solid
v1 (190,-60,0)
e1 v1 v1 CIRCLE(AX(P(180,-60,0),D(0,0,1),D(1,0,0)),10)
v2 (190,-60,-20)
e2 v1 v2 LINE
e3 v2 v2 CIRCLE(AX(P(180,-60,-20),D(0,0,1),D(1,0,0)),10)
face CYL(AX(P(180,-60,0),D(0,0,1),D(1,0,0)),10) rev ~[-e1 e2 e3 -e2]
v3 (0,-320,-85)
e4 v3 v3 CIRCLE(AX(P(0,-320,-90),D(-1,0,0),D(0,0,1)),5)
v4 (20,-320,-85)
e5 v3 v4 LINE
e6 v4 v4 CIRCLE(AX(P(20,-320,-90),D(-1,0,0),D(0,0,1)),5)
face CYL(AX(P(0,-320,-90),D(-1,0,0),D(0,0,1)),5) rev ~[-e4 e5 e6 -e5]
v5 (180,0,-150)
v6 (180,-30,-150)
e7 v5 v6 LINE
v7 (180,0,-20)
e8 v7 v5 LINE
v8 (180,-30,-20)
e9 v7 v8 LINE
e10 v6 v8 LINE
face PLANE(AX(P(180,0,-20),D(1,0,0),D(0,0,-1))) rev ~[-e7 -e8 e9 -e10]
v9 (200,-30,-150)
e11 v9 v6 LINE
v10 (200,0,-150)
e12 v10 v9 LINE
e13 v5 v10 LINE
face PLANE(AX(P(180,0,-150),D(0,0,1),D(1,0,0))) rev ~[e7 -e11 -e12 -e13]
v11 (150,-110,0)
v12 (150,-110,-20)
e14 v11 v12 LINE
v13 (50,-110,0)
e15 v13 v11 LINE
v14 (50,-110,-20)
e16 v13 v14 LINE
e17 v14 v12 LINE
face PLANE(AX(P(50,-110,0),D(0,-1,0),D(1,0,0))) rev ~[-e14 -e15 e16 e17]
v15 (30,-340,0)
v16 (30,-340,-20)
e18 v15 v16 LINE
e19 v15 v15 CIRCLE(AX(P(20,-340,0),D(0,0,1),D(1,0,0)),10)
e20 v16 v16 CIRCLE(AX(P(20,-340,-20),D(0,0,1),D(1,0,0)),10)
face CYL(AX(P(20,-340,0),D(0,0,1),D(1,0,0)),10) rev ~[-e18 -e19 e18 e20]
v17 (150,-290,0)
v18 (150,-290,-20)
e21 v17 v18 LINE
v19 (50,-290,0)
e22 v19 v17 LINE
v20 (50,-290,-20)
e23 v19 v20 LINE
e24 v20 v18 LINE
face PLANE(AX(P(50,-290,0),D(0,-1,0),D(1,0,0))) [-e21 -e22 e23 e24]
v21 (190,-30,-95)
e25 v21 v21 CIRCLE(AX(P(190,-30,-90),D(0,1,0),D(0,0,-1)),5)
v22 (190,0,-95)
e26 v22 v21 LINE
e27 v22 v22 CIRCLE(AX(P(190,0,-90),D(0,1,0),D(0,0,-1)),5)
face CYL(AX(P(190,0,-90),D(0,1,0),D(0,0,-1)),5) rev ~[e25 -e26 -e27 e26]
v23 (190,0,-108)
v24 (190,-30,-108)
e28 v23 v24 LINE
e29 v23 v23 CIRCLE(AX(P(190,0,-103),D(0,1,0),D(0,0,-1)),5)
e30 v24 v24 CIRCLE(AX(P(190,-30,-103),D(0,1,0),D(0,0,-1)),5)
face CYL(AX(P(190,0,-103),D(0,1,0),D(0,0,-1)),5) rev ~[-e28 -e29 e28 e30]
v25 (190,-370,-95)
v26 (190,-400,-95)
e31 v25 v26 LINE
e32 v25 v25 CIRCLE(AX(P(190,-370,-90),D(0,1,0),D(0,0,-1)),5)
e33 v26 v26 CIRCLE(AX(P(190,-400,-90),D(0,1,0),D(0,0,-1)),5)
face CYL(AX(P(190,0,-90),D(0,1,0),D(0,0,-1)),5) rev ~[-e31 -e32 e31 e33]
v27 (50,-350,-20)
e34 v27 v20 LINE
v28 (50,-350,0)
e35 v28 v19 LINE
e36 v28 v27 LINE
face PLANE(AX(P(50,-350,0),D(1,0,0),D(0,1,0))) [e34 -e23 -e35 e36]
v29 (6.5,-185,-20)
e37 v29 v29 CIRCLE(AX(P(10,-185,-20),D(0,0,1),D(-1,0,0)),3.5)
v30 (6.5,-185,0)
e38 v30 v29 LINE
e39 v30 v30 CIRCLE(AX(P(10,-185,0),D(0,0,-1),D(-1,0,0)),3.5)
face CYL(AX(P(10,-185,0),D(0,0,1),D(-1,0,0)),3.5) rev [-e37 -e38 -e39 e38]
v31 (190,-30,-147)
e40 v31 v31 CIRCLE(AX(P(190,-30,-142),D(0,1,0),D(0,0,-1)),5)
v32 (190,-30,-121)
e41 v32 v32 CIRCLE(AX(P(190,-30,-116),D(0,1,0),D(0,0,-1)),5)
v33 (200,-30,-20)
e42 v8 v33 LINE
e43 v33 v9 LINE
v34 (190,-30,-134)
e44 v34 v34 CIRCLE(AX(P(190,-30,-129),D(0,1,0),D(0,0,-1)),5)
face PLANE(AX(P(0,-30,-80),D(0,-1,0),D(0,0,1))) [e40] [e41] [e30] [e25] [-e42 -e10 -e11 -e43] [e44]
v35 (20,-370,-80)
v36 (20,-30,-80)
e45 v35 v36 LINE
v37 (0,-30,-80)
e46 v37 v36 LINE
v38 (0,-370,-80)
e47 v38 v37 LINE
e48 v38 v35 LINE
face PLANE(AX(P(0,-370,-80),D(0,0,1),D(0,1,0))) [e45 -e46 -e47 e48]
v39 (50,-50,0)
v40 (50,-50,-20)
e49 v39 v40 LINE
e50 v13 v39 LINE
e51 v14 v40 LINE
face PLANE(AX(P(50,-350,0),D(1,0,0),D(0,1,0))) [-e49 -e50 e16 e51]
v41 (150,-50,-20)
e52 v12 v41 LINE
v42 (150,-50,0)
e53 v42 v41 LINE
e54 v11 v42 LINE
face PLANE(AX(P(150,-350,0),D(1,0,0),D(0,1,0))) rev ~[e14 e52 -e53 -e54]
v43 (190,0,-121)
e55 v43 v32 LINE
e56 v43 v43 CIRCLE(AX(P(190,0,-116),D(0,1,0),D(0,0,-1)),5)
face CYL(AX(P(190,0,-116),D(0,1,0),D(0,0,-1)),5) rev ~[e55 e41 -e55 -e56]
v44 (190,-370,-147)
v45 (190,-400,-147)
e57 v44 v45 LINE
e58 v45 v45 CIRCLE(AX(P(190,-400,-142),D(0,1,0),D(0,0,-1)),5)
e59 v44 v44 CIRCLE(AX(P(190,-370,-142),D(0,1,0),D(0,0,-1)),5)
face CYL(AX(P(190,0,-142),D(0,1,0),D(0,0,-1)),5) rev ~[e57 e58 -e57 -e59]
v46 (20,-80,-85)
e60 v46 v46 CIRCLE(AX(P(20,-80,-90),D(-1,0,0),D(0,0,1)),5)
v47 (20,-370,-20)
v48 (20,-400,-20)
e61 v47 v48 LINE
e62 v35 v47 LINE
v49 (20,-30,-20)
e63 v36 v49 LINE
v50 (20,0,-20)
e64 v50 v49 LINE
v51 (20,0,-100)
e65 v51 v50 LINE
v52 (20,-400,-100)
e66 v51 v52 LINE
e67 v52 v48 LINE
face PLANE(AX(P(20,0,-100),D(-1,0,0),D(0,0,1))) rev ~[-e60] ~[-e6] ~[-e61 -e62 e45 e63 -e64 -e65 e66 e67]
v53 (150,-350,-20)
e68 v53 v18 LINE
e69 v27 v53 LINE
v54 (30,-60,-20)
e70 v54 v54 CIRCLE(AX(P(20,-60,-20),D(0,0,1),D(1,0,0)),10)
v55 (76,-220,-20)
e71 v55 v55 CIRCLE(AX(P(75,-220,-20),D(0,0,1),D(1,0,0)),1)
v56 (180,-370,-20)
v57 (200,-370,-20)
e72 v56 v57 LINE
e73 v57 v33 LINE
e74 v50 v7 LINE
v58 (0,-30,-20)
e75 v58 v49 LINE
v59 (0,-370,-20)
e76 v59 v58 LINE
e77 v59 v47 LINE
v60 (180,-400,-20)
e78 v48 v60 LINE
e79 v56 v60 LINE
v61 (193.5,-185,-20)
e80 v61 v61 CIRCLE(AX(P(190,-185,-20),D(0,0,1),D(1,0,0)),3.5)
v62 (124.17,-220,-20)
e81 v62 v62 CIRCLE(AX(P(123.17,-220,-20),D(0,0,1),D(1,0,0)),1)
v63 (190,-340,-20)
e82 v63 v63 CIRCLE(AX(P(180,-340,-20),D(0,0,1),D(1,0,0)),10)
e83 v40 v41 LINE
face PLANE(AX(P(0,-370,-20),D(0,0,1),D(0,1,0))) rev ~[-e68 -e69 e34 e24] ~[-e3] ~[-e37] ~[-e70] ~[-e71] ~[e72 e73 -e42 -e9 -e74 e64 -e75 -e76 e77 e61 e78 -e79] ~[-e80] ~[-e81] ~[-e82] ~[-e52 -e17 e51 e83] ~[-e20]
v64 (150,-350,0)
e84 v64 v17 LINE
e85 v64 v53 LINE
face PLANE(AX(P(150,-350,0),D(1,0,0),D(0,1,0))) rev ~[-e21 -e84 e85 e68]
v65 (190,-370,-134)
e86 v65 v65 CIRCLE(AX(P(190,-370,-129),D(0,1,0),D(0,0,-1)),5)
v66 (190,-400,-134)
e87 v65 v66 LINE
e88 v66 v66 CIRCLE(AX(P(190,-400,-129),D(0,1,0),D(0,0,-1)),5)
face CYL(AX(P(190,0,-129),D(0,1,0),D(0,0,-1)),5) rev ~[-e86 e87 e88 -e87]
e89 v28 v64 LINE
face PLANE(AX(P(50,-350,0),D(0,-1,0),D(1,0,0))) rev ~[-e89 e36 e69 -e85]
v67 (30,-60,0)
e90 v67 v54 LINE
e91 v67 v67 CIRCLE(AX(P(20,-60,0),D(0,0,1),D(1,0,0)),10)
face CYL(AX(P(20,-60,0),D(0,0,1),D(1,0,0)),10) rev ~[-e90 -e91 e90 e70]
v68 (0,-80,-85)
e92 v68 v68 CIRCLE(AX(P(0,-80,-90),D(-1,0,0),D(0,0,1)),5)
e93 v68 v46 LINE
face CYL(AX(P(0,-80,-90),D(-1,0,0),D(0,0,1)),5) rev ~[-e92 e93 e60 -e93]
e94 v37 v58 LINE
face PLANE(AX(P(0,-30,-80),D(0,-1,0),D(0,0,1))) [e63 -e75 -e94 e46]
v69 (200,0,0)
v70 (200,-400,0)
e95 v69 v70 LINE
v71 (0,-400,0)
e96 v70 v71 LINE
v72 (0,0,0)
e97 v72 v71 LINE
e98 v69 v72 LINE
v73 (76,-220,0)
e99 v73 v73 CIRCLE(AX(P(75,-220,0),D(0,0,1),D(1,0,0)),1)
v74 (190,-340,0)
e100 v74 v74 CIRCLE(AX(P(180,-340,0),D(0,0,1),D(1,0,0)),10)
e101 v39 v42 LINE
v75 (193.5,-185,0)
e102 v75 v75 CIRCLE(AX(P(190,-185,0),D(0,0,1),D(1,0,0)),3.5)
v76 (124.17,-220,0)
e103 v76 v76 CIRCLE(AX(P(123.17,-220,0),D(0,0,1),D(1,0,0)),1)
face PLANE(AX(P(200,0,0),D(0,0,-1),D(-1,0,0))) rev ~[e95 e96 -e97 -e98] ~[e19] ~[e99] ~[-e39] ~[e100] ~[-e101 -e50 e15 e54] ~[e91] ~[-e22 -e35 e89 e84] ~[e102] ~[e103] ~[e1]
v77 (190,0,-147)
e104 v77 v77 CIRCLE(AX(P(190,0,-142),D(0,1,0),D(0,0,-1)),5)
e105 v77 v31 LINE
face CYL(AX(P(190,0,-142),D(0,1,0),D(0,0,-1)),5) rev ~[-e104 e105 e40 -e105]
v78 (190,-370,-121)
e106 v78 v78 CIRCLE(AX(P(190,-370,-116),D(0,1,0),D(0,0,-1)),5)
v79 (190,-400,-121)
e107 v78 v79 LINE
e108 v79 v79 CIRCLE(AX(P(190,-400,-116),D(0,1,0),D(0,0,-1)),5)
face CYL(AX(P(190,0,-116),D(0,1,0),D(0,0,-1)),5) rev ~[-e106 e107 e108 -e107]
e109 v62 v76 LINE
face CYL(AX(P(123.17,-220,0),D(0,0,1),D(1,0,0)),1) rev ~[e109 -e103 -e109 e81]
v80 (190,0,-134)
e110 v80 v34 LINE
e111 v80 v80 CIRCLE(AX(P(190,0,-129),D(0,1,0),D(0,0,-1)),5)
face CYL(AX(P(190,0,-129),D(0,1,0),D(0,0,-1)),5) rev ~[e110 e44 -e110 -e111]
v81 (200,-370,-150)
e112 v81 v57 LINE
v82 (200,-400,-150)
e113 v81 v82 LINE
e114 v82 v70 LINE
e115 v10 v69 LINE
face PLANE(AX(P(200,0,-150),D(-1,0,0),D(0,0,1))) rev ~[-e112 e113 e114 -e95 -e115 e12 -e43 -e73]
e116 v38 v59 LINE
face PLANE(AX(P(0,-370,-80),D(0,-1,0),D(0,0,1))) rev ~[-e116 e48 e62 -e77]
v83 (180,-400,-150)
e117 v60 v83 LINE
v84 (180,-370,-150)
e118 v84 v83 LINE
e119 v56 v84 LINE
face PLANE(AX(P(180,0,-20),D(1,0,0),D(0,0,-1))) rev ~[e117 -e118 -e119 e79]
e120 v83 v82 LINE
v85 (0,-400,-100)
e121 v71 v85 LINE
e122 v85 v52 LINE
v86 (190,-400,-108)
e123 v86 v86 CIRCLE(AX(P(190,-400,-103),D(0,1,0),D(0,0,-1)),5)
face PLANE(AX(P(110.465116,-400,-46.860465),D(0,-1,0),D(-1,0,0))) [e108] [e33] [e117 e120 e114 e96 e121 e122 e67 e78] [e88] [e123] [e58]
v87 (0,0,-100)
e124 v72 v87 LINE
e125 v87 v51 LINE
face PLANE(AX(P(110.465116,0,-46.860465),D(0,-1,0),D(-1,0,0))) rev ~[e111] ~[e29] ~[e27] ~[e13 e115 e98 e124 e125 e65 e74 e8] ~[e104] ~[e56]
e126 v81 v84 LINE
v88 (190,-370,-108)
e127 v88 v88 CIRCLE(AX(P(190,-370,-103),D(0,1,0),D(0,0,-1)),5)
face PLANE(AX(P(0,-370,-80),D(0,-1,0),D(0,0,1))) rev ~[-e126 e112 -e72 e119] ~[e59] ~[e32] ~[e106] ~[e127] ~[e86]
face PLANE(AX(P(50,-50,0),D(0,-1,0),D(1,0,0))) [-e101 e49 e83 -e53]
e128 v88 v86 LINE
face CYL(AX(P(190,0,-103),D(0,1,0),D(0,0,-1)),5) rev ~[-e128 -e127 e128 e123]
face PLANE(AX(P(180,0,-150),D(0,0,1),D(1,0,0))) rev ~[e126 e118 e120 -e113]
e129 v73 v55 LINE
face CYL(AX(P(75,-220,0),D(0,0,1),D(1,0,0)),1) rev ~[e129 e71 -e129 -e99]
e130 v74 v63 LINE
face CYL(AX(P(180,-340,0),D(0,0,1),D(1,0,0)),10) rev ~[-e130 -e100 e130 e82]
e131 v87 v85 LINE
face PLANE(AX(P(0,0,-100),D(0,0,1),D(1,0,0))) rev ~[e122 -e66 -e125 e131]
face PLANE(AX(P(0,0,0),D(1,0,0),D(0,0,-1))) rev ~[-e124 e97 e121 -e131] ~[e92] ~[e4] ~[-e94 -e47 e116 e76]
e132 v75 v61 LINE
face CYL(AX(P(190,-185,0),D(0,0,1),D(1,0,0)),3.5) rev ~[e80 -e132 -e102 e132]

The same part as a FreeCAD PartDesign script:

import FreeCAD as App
import Part
import Sketcher

V = App.Vector
Q = App.Units.Quantity

doc = App.newDocument("Part")
body = doc.addObject("PartDesign::Body", "Body")

sketch1 = body.newObject("Sketcher::SketchObject", "Sketch")
sketch1.AttachmentSupport = (doc.getObject("XZ_Plane"), [""])
sketch1.MapMode = "FlatFace"
sketch1.addGeometry([
    Part.LineSegment(V(0, -100, 0), V(0, 0, 0)),
    Part.LineSegment(V(0, 0, 0), V(200, 0, 0)),
    Part.LineSegment(V(200, 0, 0), V(200, -150, 0)),
    Part.LineSegment(V(200, -150, 0), V(180, -150, 0)),
    Part.LineSegment(V(180, -150, 0), V(180, -20, 0)),
    Part.LineSegment(V(180, -20, 0), V(20, -20, 0)),
    Part.LineSegment(V(20, -20, 0), V(20, -100, 0)),
    Part.LineSegment(V(20, -100, 0), V(0, -100, 0)),
], False)
sketch1.addConstraint([
    Sketcher.Constraint("Coincident", 0, 2, 1, 1),
    Sketcher.Constraint("Coincident", 1, 2, 2, 1),
    Sketcher.Constraint("Coincident", 2, 2, 3, 1),
    Sketcher.Constraint("Coincident", 3, 2, 4, 1),
    Sketcher.Constraint("Coincident", 4, 2, 5, 1),
    Sketcher.Constraint("Coincident", 5, 2, 6, 1),
    Sketcher.Constraint("Coincident", 6, 2, 7, 1),
    Sketcher.Constraint("Coincident", 7, 2, 0, 1),
    Sketcher.Constraint("Vertical", 0),
    Sketcher.Constraint("Horizontal", 1),
    Sketcher.Constraint("Vertical", 2),
    Sketcher.Constraint("Horizontal", 3),
    Sketcher.Constraint("Vertical", 4),
    Sketcher.Constraint("Horizontal", 5),
    Sketcher.Constraint("Vertical", 6),
    Sketcher.Constraint("Horizontal", 7),
    Sketcher.Constraint("Coincident", 0, 2, -1, 1),
    Sketcher.Constraint("Equal", 3, 7),
    Sketcher.Constraint("DistanceX", 1, 1, 1, 2, Q("200 mm")),
    Sketcher.Constraint("DistanceX", 3, 2, 3, 1, Q("20 mm")),
    Sketcher.Constraint("DistanceY", 0, 1, 0, 2, Q("100 mm")),
    Sketcher.Constraint("DistanceY", 2, 2, 2, 1, Q("150 mm")),
    Sketcher.Constraint("DistanceY", 4, 1, 4, 2, Q("130 mm")),
])
pad1 = body.newObject("PartDesign::Pad", "Pad")
pad1.Profile = sketch1
pad1.Length = 400

sketch2 = body.newObject("Sketcher::SketchObject", "Sketch001")
sketch2.AttachmentSupport = (doc.getObject("XY_Plane"), [""])
sketch2.MapMode = "FlatFace"
sketch2.addGeometry([
    Part.LineSegment(V(50, -50, 0), V(50, -350, 0)),
    Part.LineSegment(V(50, -350, 0), V(150, -350, 0)),
    Part.LineSegment(V(150, -350, 0), V(150, -50, 0)),
    Part.LineSegment(V(150, -50, 0), V(50, -50, 0)),
], False)
sketch2.addConstraint([
    Sketcher.Constraint("Coincident", 0, 2, 1, 1),
    Sketcher.Constraint("Coincident", 1, 2, 2, 1),
    Sketcher.Constraint("Coincident", 2, 2, 3, 1),
    Sketcher.Constraint("Coincident", 3, 2, 0, 1),
    Sketcher.Constraint("Vertical", 0),
    Sketcher.Constraint("Horizontal", 1),
    Sketcher.Constraint("Vertical", 2),
    Sketcher.Constraint("Horizontal", 3),
    Sketcher.Constraint("DistanceX", 1, 1, 1, 2, Q("100 mm")),
    Sketcher.Constraint("DistanceY", 0, 2, 0, 1, Q("300 mm")),
    Sketcher.Constraint("DistanceX", -1, 1, 0, 2, Q("50 mm")),
    Sketcher.Constraint("DistanceY", 0, 2, -1, 1, Q("350 mm")),
])
pocket1 = body.newObject("PartDesign::Pocket", "Pocket")
pocket1.Profile = sketch2
pocket1.Length = 400

sketch3 = body.newObject("Sketcher::SketchObject", "Sketch002")
sketch3.AttachmentSupport = (doc.getObject("YZ_Plane"), [""])
sketch3.MapMode = "FlatFace"
sketch3.addGeometry([
    Part.LineSegment(V(-30, -80, 0), V(-370, -80, 0)),
    Part.LineSegment(V(-370, -80, 0), V(-370, -20, 0)),
    Part.LineSegment(V(-370, -20, 0), V(-30, -20, 0)),
    Part.LineSegment(V(-30, -20, 0), V(-30, -80, 0)),
], False)
sketch3.addConstraint([
    Sketcher.Constraint("Coincident", 0, 2, 1, 1),
    Sketcher.Constraint("Coincident", 1, 2, 2, 1),
    Sketcher.Constraint("Coincident", 2, 2, 3, 1),
    Sketcher.Constraint("Coincident", 3, 2, 0, 1),
    Sketcher.Constraint("Horizontal", 0),
    Sketcher.Constraint("Vertical", 1),
    Sketcher.Constraint("Horizontal", 2),
    Sketcher.Constraint("Vertical", 3),
    Sketcher.Constraint("DistanceX", 0, 2, 0, 1, Q("340 mm")),
    Sketcher.Constraint("DistanceY", 1, 1, 1, 2, Q("60 mm")),
    Sketcher.Constraint("DistanceX", 0, 2, -1, 1, Q("370 mm")),
    Sketcher.Constraint("DistanceY", 0, 2, -1, 1, Q("80 mm")),
])
pocket2 = body.newObject("PartDesign::Pocket", "Pocket001")
pocket2.Profile = sketch3
pocket2.Length = 400
pocket2.Reversed = True

sketch4 = body.newObject("Sketcher::SketchObject", "Sketch003")
sketch4.AttachmentSupport = (doc.getObject("YZ_Plane"), [""])
sketch4.MapMode = "FlatFace"
sketch4.AttachmentOffset = App.Placement(V(0, 0, 200), App.Rotation())
sketch4.addGeometry([
    Part.LineSegment(V(-30, -80, 0), V(-370, -80, 0)),
    Part.LineSegment(V(-370, -80, 0), V(-370, -150, 0)),
    Part.LineSegment(V(-370, -150, 0), V(-30, -150, 0)),
    Part.LineSegment(V(-30, -150, 0), V(-30, -80, 0)),
], False)
sketch4.addConstraint([
    Sketcher.Constraint("Coincident", 0, 2, 1, 1),
    Sketcher.Constraint("Coincident", 1, 2, 2, 1),
    Sketcher.Constraint("Coincident", 2, 2, 3, 1),
    Sketcher.Constraint("Coincident", 3, 2, 0, 1),
    Sketcher.Constraint("Horizontal", 0),
    Sketcher.Constraint("Vertical", 1),
    Sketcher.Constraint("Horizontal", 2),
    Sketcher.Constraint("Vertical", 3),
    Sketcher.Constraint("DistanceX", 0, 2, 0, 1, Q("340 mm")),
    Sketcher.Constraint("DistanceY", 1, 2, 1, 1, Q("70 mm")),
    Sketcher.Constraint("DistanceX", 0, 2, -1, 1, Q("370 mm")),
    Sketcher.Constraint("DistanceY", 0, 2, -1, 1, Q("80 mm")),
])
pocket3 = body.newObject("PartDesign::Pocket", "Pocket002")
pocket3.Profile = sketch4
pocket3.Length = 118

sketch5 = body.newObject("Sketcher::SketchObject", "Sketch004")
sketch5.AttachmentSupport = (doc.getObject("XZ_Plane"), [""])
sketch5.MapMode = "FlatFace"
sketch5.addGeometry([
    Part.Circle(V(190, -142, 0), V(0, 0, 1), 5),
    Part.Circle(V(190, -129, 0), V(0, 0, 1), 5),
    Part.Circle(V(190, -116, 0), V(0, 0, 1), 5),
    Part.Circle(V(190, -103, 0), V(0, 0, 1), 5),
    Part.Circle(V(190, -90, 0), V(0, 0, 1), 5),
], False)
sketch5.addConstraint([
    Sketcher.Constraint("Equal", 0, 1),
    Sketcher.Constraint("Equal", 1, 2),
    Sketcher.Constraint("Equal", 2, 3),
    Sketcher.Constraint("Equal", 3, 4),
    Sketcher.Constraint("Vertical", 0, 3, 1, 3),
    Sketcher.Constraint("Vertical", 1, 3, 2, 3),
    Sketcher.Constraint("Vertical", 2, 3, 3, 3),
    Sketcher.Constraint("Vertical", 3, 3, 4, 3),
    Sketcher.Constraint("Diameter", 0, Q("10 mm")),
    Sketcher.Constraint("DistanceX", -1, 1, 0, 3, Q("190 mm")),
    Sketcher.Constraint("DistanceY", 0, 3, -1, 1, Q("142 mm")),
    Sketcher.Constraint("DistanceY", 1, 3, -1, 1, Q("129 mm")),
    Sketcher.Constraint("DistanceY", 2, 3, -1, 1, Q("116 mm")),
    Sketcher.Constraint("DistanceY", 3, 3, -1, 1, Q("103 mm")),
    Sketcher.Constraint("DistanceY", 4, 3, -1, 1, Q("90 mm")),
])
pocket4 = body.newObject("PartDesign::Pocket", "Pocket003")
pocket4.Profile = sketch5
pocket4.Length = 543
pocket4.Reversed = True

sketch6 = body.newObject("Sketcher::SketchObject", "Sketch005")
sketch6.AttachmentSupport = (doc.getObject("YZ_Plane"), [""])
sketch6.MapMode = "FlatFace"
sketch6.addGeometry([
    Part.Circle(V(-80, -90, 0), V(0, 0, 1), 5),
    Part.Circle(V(-320, -90, 0), V(0, 0, 1), 5),
], False)
sketch6.addConstraint([
    Sketcher.Constraint("Equal", 0, 1),
    Sketcher.Constraint("Horizontal", 0, 3, 1, 3),
    Sketcher.Constraint("Diameter", 0, Q("10 mm")),
    Sketcher.Constraint("DistanceX", 0, 3, -1, 1, Q("80 mm")),
    Sketcher.Constraint("DistanceY", 0, 3, -1, 1, Q("90 mm")),
    Sketcher.Constraint("DistanceX", 1, 3, -1, 1, Q("320 mm")),
])
pocket5 = body.newObject("PartDesign::Pocket", "Pocket004")
pocket5.Profile = sketch6
pocket5.Length = 193
pocket5.Reversed = True

sketch7 = body.newObject("Sketcher::SketchObject", "Sketch006")
sketch7.AttachmentSupport = (doc.getObject("XY_Plane"), [""])
sketch7.MapMode = "FlatFace"
sketch7.addGeometry([
    Part.Circle(V(180, -60, 0), V(0, 0, 1), 10),
    Part.Circle(V(20, -60, 0), V(0, 0, 1), 10),
    Part.Circle(V(180, -340, 0), V(0, 0, 1), 10),
    Part.Circle(V(20, -340, 0), V(0, 0, 1), 10),
], False)
sketch7.addConstraint([
    Sketcher.Constraint("Equal", 0, 1),
    Sketcher.Constraint("Equal", 1, 2),
    Sketcher.Constraint("Equal", 2, 3),
    Sketcher.Constraint("Horizontal", 0, 3, 1, 3),
    Sketcher.Constraint("Horizontal", 2, 3, 3, 3),
    Sketcher.Constraint("Vertical", 0, 3, 2, 3),
    Sketcher.Constraint("Vertical", 1, 3, 3, 3),
    Sketcher.Constraint("Diameter", 0, Q("20 mm")),
    Sketcher.Constraint("DistanceX", -1, 1, 0, 3, Q("180 mm")),
    Sketcher.Constraint("DistanceY", 0, 3, -1, 1, Q("60 mm")),
    Sketcher.Constraint("DistanceX", -1, 1, 1, 3, Q("20 mm")),
    Sketcher.Constraint("DistanceY", 2, 3, -1, 1, Q("340 mm")),
])
pocket6 = body.newObject("PartDesign::Pocket", "Pocket005")
pocket6.Profile = sketch7
pocket6.Length = 20

sketch8 = body.newObject("Sketcher::SketchObject", "Sketch007")
sketch8.AttachmentSupport = (doc.getObject("XY_Plane"), [""])
sketch8.MapMode = "FlatFace"
sketch8.addGeometry([
    Part.LineSegment(V(50, -110, 0), V(50, -290, 0)),
    Part.LineSegment(V(50, -290, 0), V(150, -290, 0)),
    Part.LineSegment(V(150, -290, 0), V(150, -110, 0)),
    Part.LineSegment(V(150, -110, 0), V(50, -110, 0)),
], False)
sketch8.addConstraint([
    Sketcher.Constraint("Coincident", 0, 2, 1, 1),
    Sketcher.Constraint("Coincident", 1, 2, 2, 1),
    Sketcher.Constraint("Coincident", 2, 2, 3, 1),
    Sketcher.Constraint("Coincident", 3, 2, 0, 1),
    Sketcher.Constraint("Vertical", 0),
    Sketcher.Constraint("Horizontal", 1),
    Sketcher.Constraint("Vertical", 2),
    Sketcher.Constraint("Horizontal", 3),
    Sketcher.Constraint("DistanceX", 1, 1, 1, 2, Q("100 mm")),
    Sketcher.Constraint("DistanceY", 0, 2, 0, 1, Q("180 mm")),
    Sketcher.Constraint("DistanceX", -1, 1, 0, 2, Q("50 mm")),
    Sketcher.Constraint("DistanceY", 0, 2, -1, 1, Q("290 mm")),
])
pad2 = body.newObject("PartDesign::Pad", "Pad001")
pad2.Profile = sketch8
pad2.Length = 20
pad2.Reversed = True

sketch9 = body.newObject("Sketcher::SketchObject", "Sketch008")
sketch9.AttachmentSupport = (doc.getObject("XY_Plane"), [""])
sketch9.MapMode = "FlatFace"
sketch9.addGeometry([
    Part.Circle(V(75, -220, 0), V(0, 0, 1), 1),
    Part.Circle(V(123.2, -220, 0), V(0, 0, 1), 1),
], False)
sketch9.addConstraint([
    Sketcher.Constraint("Equal", 0, 1),
    Sketcher.Constraint("Horizontal", 0, 3, 1, 3),
    Sketcher.Constraint("Diameter", 0, Q("2 mm")),
    Sketcher.Constraint("DistanceX", -1, 1, 0, 3, Q("75 mm")),
    Sketcher.Constraint("DistanceY", 0, 3, -1, 1, Q("220 mm")),
    Sketcher.Constraint("DistanceX", -1, 1, 1, 3, Q("123.17 mm")),
])
pocket7 = body.newObject("PartDesign::Pocket", "Pocket006")
pocket7.Profile = sketch9
pocket7.Length = 53
pocket7.Midplane = True

sketch10 = body.newObject("Sketcher::SketchObject", "Sketch009")
sketch10.AttachmentSupport = (doc.getObject("XY_Plane"), [""])
sketch10.MapMode = "FlatFace"
sketch10.addGeometry(Part.Circle(V(190, -185, 0), V(0, 0, 1), 3.5), False)
sketch10.addConstraint([
    Sketcher.Constraint("Diameter", 0, Q("7 mm")),
    Sketcher.Constraint("DistanceX", -1, 1, 0, 3, Q("190 mm")),
    Sketcher.Constraint("DistanceY", 0, 3, -1, 1, Q("185 mm")),
])
pocket8 = body.newObject("PartDesign::Pocket", "Pocket007")
pocket8.Profile = sketch10
pocket8.Length = 35
doc.recompute()

datumplane = body.newObject("PartDesign::Plane", "DatumPlane")
datumplane.AttachmentSupport = (doc.getObject("YZ_Plane"), [""])
datumplane.MapMode = "FlatFace"
datumplane.AttachmentOffset = App.Placement(V(0, 0, 100), App.Rotation())
mirrored = body.newObject("PartDesign::Mirrored", "Mirrored")
mirrored.Originals = [pocket8]
mirrored.MirrorPlane = (datumplane, [""])
body.Tip = mirrored

doc.recompute()
